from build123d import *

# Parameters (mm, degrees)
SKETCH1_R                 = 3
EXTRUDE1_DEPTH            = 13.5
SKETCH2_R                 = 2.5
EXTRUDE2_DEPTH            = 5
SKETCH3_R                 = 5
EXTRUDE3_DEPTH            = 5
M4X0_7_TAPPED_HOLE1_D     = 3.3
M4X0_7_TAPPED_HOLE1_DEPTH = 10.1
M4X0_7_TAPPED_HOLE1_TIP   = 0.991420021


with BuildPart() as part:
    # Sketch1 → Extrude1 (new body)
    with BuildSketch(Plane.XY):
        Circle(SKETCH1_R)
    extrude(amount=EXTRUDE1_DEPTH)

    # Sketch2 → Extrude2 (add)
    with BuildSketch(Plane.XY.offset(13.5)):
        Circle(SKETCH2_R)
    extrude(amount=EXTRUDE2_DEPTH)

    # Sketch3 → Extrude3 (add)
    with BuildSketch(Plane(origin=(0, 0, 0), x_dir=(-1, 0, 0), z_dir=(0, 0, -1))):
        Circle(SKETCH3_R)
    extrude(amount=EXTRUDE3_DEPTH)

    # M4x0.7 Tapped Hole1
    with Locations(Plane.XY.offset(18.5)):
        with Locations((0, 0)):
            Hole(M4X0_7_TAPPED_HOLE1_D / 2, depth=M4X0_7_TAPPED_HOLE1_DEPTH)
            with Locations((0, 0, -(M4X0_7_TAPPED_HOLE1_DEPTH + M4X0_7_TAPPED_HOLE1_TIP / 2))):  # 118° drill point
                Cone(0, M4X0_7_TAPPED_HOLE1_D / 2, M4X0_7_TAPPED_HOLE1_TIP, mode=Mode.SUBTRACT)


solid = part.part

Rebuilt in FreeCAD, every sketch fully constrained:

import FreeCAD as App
import Part
import Sketcher

doc = App.newDocument("Part")
body = doc.addObject("PartDesign::Body", "Body")

sketch1 = body.newObject("Sketcher::SketchObject", "Sketch")
sketch1.AttachmentSupport = (doc.getObject("XY_Plane"), [""])
sketch1.MapMode = "FlatFace"
sketch1.addGeometry(Part.Circle(App.Vector(0, 0, 0), App.Vector(0, 0, 1), 3), False)
sketch1.addConstraint(Sketcher.Constraint("Coincident", 0, 3, -1, 1))
sketch1.addConstraint(Sketcher.Constraint("Diameter", 0, 6.0))
pad1 = body.newObject("PartDesign::Pad", "Pad")
pad1.Profile = sketch1
pad1.Length = 13.5

sketch2 = body.newObject("Sketcher::SketchObject", "Sketch001")
sketch2.AttachmentSupport = (doc.getObject("XY_Plane"), [""])
sketch2.MapMode = "FlatFace"
sketch2.AttachmentOffset = App.Placement(App.Vector(0, 0, 13.5), App.Rotation())
sketch2.addGeometry(Part.Circle(App.Vector(0, 0, 0), App.Vector(0, 0, 1), 2.5), False)
sketch2.addConstraint(Sketcher.Constraint("Coincident", 0, 3, -1, 1))
sketch2.addConstraint(Sketcher.Constraint("Diameter", 0, 5.0))
pad2 = body.newObject("PartDesign::Pad", "Pad001")
pad2.Profile = sketch2
pad2.Length = 5

sketch3 = body.newObject("Sketcher::SketchObject", "Sketch002")
sketch3.AttachmentSupport = (doc.getObject("XY_Plane"), [""])
sketch3.MapMode = "FlatFace"
sketch3.addGeometry(Part.Circle(App.Vector(0, 0, 0), App.Vector(0, 0, 1), 5), False)
sketch3.addConstraint(Sketcher.Constraint("Coincident", 0, 3, -1, 1))
sketch3.addConstraint(Sketcher.Constraint("Diameter", 0, 10.0))
pad3 = body.newObject("PartDesign::Pad", "Pad002")
pad3.Profile = sketch3
pad3.Length = 5
pad3.Reversed = True

sketch4 = body.newObject("Sketcher::SketchObject", "Sketch003")
sketch4.AttachmentSupport = (doc.getObject("XY_Plane"), [""])
sketch4.MapMode = "FlatFace"
sketch4.AttachmentOffset = App.Placement(App.Vector(0, 0, 18.5), App.Rotation())
sketch4.addGeometry(Part.Circle(App.Vector(0, 0, 0), App.Vector(0, 0, 1), 1.65), False)
sketch4.addConstraint(Sketcher.Constraint("Coincident", 0, 3, -1, 1))
sketch4.addConstraint(Sketcher.Constraint("Diameter", 0, 3.3))
doc.recompute()
hole = body.newObject("PartDesign::Hole", "Hole")
hole.Profile = sketch4
hole.ThreadType = "None"
hole.Diameter = 3.3
hole.DepthType = "Dimension"
hole.Depth = 10.1
hole.DrillPoint = "Angled"
hole.DrillPointAngle = 118

doc.recompute()
